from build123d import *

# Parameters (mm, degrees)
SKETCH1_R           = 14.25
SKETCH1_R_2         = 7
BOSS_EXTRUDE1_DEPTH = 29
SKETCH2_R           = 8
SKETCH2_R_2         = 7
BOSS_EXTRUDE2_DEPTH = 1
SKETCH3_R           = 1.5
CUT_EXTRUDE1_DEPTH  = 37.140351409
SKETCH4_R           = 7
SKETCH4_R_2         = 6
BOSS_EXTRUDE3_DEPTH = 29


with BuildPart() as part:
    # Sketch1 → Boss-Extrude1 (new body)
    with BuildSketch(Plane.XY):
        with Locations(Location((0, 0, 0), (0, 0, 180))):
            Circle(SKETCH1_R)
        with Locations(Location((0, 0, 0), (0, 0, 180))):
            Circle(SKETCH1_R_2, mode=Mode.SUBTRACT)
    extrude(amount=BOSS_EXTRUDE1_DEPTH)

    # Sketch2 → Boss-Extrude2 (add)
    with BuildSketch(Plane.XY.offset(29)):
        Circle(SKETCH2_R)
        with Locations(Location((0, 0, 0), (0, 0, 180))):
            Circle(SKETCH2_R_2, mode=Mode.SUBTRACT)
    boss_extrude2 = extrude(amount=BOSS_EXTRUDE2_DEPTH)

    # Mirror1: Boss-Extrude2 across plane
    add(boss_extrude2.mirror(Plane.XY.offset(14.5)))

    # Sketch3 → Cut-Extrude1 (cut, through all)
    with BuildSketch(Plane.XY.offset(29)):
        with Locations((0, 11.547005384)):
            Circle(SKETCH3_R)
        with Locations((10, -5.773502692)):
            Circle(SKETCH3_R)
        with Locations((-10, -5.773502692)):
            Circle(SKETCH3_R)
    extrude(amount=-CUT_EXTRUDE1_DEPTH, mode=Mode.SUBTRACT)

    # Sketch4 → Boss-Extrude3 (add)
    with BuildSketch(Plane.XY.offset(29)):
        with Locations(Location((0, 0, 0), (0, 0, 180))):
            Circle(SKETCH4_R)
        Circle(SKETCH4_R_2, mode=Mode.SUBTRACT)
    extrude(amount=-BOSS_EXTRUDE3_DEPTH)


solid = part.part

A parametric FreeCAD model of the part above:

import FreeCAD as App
import Part
import Sketcher
from FreeCAD import Vector

doc = App.newDocument("Part")
body = doc.addObject("PartDesign::Body", "Body")

# Sketch on XY plane
sketch1 = body.newObject("Sketcher::SketchObject", "Sketch")
sketch1.AttachmentSupport = (doc.getObject("XY_Plane"), [""])
sketch1.MapMode = "FlatFace"
sketch1.addGeometry([
    Part.Circle(Vector(0, 0, 0), Vector(0, 0, 1), 14),
    Part.Circle(Vector(0, 0, 0), Vector(0, 0, 1), 7),
], False)
sketch1.addConstraint([
    Sketcher.Constraint("Coincident", 0, 3, -1, 1),
    Sketcher.Constraint("Coincident", 1, 3, -1, 1),
    Sketcher.Constraint("Diameter", 1, 14.0),
    Sketcher.Constraint("Diameter", 0, 28.5),
])
pad1 = body.newObject("PartDesign::Pad", "Pad")
pad1.Profile = sketch1
pad1.Length = 29

# Sketch on XY plane
sketch2 = body.newObject("Sketcher::SketchObject", "Sketch001")
sketch2.AttachmentSupport = (doc.getObject("XY_Plane"), [""])
sketch2.MapMode = "FlatFace"
sketch2.AttachmentOffset = App.Placement(Vector(0, 0, 29), App.Rotation())
sketch2.addGeometry([
    Part.Circle(Vector(0, 0, 0), Vector(0, 0, 1), 8),
    Part.Circle(Vector(0, 0, 0), Vector(0, 0, 1), 7),
], False)
sketch2.addConstraint([
    Sketcher.Constraint("Coincident", 0, 3, -1, 1),
    Sketcher.Constraint("Coincident", 1, 3, -1, 1),
    Sketcher.Constraint("Diameter", 0, 16.0),
    Sketcher.Constraint("Diameter", 1, 14.0),
])
pad2 = body.newObject("PartDesign::Pad", "Pad001")
pad2.Profile = sketch2
pad2.Length = 1
doc.recompute()

datumplane = body.newObject("PartDesign::Plane", "DatumPlane")
datumplane.AttachmentSupport = (doc.getObject("XY_Plane"), [""])
datumplane.MapMode = "FlatFace"
datumplane.AttachmentOffset = App.Placement(Vector(0, 0, 14.5), App.Rotation())
mirrored = body.newObject("PartDesign::Mirrored", "Mirrored")
mirrored.Originals = [pad2]
mirrored.MirrorPlane = (datumplane, [""])
body.Tip = mirrored

# Sketch on XY plane
sketch3 = body.newObject("Sketcher::SketchObject", "Sketch002")
sketch3.AttachmentSupport = (doc.getObject("XY_Plane"), [""])
sketch3.MapMode = "FlatFace"
sketch3.AttachmentOffset = App.Placement(Vector(0, 0, 29), App.Rotation())
sketch3.addGeometry([
    Part.Circle(Vector(0, 11.5, 0), Vector(0, 0, 1), 1.5),
    Part.Circle(Vector(10, -5.8, 0), Vector(0, 0, 1), 1.5),
    Part.Circle(Vector(-10, -5.8, 0), Vector(0, 0, 1), 1.5),
], False)
sketch3.addConstraint([
    Sketcher.Constraint("Equal", 0, 1),
    Sketcher.Constraint("Equal", 1, 2),
    Sketcher.Constraint("Symmetric", 1, 3, 2, 3, -2),
    Sketcher.Constraint("PointOnObject", 0, 3, -2),
    Sketcher.Constraint("Diameter", 0, 3.0),
    Sketcher.Constraint("DistanceX", -1, 1, 1, 3, 10.0),
    Sketcher.Constraint("DistanceY", 1, 3, 0, 3, 17.320508),
    Sketcher.Constraint("DistanceY", -1, 1, 0, 3, 11.547005),
])
pocket1 = body.newObject("PartDesign::Pocket", "Pocket")
pocket1.Profile = sketch3
pocket1.Type = "ThroughAll"

# Sketch on XY plane
sketch4 = body.newObject("Sketcher::SketchObject", "Sketch003")
sketch4.AttachmentSupport = (doc.getObject("XY_Plane"), [""])
sketch4.MapMode = "FlatFace"
sketch4.AttachmentOffset = App.Placement(Vector(0, 0, 29), App.Rotation())
sketch4.addGeometry([
    Part.Circle(Vector(0, 0, 0), Vector(0, 0, 1), 7),
    Part.Circle(Vector(0, 0, 0), Vector(0, 0, 1), 6),
], False)
sketch4.addConstraint([
    Sketcher.Constraint("Coincident", 0, 3, -1, 1),
    Sketcher.Constraint("Coincident", 1, 3, -1, 1),
    Sketcher.Constraint("Diameter", 0, 14.0),
    Sketcher.Constraint("Diameter", 1, 12.0),
])
pad3 = body.newObject("PartDesign::Pad", "Pad002")
pad3.Profile = sketch4
pad3.Length = 29
pad3.Reversed = True

doc.recompute()
